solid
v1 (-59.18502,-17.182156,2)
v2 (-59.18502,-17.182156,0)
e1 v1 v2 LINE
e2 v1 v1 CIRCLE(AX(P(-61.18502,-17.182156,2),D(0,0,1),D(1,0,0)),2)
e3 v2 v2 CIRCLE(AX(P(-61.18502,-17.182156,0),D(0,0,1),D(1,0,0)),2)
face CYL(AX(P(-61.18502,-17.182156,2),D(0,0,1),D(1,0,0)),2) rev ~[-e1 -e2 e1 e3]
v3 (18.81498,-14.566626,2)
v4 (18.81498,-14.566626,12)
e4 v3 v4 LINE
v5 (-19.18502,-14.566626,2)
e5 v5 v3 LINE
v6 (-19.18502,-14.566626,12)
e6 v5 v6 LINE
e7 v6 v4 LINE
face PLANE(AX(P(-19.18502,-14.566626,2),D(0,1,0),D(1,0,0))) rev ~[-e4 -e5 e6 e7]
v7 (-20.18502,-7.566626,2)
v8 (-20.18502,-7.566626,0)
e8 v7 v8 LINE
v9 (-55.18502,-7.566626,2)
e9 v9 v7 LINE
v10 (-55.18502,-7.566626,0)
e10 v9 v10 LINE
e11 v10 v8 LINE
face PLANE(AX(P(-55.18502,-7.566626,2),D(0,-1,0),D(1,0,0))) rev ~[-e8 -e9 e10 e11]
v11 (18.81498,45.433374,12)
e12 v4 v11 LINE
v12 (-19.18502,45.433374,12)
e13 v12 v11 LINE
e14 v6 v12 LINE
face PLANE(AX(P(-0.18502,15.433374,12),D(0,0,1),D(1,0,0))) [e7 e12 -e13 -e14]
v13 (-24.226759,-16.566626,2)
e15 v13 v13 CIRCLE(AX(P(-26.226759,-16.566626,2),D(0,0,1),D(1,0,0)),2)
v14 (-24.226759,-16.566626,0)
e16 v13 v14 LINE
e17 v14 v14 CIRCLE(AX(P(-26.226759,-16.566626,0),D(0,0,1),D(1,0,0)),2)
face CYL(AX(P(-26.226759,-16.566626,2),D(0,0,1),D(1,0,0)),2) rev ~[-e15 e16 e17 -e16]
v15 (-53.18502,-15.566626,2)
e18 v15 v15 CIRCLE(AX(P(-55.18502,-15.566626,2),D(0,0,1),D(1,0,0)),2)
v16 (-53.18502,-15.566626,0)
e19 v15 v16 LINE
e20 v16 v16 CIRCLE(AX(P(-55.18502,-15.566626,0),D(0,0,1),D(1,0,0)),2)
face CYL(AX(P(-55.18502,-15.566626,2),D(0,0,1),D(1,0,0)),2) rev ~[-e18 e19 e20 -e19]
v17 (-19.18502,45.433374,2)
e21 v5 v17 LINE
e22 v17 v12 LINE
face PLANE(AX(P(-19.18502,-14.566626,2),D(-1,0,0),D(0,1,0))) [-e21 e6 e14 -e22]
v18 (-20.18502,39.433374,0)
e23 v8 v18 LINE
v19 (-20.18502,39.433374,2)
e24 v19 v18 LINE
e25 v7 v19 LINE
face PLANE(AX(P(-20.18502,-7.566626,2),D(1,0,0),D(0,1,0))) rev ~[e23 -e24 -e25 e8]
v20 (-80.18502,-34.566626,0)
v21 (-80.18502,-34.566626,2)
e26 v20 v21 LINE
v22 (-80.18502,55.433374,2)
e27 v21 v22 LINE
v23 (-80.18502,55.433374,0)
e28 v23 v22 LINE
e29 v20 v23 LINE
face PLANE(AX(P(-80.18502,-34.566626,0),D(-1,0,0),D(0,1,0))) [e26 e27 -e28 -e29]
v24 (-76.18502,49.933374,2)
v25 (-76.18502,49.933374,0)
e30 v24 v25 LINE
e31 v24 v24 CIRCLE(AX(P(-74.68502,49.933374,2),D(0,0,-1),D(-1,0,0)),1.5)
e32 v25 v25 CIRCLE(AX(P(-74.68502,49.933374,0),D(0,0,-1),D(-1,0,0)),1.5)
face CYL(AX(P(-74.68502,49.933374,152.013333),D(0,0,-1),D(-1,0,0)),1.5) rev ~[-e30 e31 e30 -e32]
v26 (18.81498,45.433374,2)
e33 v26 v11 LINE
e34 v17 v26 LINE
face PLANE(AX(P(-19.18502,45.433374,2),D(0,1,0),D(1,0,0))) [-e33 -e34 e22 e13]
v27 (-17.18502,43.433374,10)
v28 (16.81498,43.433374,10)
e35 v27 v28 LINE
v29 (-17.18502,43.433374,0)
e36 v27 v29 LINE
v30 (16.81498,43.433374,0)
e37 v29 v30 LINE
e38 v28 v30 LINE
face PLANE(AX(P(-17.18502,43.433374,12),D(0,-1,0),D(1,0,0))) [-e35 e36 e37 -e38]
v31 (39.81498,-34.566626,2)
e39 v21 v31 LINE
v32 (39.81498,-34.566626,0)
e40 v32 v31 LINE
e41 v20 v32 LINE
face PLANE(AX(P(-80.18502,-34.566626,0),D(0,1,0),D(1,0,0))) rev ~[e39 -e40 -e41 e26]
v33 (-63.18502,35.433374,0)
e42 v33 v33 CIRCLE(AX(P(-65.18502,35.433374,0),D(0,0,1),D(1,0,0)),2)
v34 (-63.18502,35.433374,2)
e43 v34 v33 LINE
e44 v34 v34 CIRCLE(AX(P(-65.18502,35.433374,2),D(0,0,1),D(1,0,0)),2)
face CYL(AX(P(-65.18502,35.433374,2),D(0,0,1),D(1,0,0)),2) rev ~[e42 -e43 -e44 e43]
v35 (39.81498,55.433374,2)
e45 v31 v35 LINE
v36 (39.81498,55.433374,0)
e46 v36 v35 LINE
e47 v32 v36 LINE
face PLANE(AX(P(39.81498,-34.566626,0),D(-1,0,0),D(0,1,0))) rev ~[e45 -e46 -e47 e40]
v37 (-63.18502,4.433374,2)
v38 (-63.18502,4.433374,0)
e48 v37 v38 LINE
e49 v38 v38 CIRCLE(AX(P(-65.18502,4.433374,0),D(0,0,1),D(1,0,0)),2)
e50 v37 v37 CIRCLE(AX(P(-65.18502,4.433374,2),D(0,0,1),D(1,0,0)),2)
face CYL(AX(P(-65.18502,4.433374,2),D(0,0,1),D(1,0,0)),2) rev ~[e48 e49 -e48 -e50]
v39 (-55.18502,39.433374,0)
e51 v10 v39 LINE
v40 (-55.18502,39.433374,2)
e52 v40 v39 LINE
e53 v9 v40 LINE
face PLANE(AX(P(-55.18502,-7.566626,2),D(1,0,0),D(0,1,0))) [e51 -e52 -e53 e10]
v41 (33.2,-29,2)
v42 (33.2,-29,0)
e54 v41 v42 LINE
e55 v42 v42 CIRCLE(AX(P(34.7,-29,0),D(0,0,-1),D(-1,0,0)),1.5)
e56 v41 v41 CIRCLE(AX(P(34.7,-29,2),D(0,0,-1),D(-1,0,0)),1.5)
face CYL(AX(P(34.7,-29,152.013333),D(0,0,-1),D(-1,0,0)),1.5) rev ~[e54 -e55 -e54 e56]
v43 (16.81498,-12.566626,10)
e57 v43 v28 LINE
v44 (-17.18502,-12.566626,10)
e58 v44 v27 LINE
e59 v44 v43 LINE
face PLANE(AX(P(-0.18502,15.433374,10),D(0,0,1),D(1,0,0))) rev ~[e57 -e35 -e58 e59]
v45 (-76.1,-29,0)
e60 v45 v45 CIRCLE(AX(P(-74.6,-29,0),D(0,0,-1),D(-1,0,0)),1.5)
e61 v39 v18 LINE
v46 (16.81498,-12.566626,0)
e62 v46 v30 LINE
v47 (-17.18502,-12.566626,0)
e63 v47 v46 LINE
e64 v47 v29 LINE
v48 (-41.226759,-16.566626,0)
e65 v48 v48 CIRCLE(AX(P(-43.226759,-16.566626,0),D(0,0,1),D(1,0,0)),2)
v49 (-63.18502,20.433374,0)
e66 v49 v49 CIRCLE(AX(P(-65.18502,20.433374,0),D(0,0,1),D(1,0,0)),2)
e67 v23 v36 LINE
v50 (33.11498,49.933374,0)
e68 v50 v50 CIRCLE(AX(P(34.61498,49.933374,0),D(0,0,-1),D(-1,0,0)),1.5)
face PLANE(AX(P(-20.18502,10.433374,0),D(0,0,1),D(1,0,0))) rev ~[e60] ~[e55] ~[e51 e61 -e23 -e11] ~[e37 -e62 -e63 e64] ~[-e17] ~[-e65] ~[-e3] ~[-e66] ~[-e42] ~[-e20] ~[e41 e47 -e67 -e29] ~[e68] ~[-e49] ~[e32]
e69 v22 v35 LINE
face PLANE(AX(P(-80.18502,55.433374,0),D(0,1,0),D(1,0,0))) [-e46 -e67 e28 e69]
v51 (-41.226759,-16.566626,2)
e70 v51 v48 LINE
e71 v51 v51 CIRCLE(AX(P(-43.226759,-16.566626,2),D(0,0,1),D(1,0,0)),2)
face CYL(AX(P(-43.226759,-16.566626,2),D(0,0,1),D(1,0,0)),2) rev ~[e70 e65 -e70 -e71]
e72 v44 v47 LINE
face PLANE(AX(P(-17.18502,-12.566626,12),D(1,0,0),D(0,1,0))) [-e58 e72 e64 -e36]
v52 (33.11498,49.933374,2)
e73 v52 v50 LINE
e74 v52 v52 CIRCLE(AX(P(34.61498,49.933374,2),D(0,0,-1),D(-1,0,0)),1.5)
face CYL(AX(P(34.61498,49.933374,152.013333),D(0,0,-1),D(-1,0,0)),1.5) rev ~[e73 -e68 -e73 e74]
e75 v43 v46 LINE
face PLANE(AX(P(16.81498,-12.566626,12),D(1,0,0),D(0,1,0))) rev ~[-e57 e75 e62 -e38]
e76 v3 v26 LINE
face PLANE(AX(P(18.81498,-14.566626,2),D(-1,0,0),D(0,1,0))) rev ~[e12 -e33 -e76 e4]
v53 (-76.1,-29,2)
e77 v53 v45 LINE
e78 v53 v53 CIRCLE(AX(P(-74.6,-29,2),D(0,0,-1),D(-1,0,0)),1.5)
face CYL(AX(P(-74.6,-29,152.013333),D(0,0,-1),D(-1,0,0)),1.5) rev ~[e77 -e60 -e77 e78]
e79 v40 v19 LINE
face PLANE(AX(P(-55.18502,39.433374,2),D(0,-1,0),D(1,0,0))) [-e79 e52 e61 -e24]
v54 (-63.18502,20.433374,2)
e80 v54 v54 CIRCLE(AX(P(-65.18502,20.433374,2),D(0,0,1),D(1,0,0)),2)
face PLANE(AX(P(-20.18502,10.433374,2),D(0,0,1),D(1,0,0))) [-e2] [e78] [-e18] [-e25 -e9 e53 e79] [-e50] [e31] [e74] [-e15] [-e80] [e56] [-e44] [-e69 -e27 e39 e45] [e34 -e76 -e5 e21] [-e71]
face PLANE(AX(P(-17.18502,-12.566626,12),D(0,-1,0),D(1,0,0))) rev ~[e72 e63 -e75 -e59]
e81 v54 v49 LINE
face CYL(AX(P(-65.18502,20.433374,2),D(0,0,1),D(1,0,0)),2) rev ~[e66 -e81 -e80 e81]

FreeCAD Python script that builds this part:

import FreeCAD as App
import Part
import Sketcher
from FreeCAD import Vector
Q = App.Units.Quantity

doc = App.newDocument("Part")
params = doc.addObject("Spreadsheet::Sheet", "Params")
for row, (alias, value) in enumerate([
    ("sketch1_width", "120 mm"),
    ("sketch1_height", "90 mm"),
    ("pad1_length", "2 mm"),
    ("sketch2_width", "35 mm"),
    ("sketch2_height", "47 mm"),
    ("pocket1_length", "2 mm"),
    ("sketch3_diameter", "3 mm"),
    ("hole_diameter", "3 mm"),
    ("sketch4_width", "38 mm"),
    ("sketch4_height", "60 mm"),
    ("pad2_length", "10 mm"),
    ("sketch5_width", "34 mm"),
    ("sketch5_height", "56 mm"),
    ("sketch6_width", "34 mm"),
    ("sketch6_height", "56 mm"),
    ("pad3_length", "2 mm"),
    ("sketch7_diameter", "4 mm"),
    ("pocket3_length", "25 mm"),
], start=1):
    params.set(f"A{row}", alias)
    params.set(f"B{row}", "=" + value)
    params.setAlias(f"B{row}", alias)

body = doc.addObject("PartDesign::Body", "Body")

# Sketch on XY plane
sketch1 = body.newObject("Sketcher::SketchObject", "Sketch")
sketch1.AttachmentSupport = (doc.getObject("XY_Plane"), [""])
sketch1.MapMode = "FlatFace"
sketch1.addGeometry([
    Part.LineSegment(Vector(-80, 55, 0), Vector(-80, -35, 0)),
    Part.LineSegment(Vector(-80, -35, 0), Vector(40, -35, 0)),
    Part.LineSegment(Vector(40, -35, 0), Vector(40, 55, 0)),
    Part.LineSegment(Vector(40, 55, 0), Vector(-80, 55, 0)),
], False)
sketch1.addConstraint([
    Sketcher.Constraint("Coincident", 0, 2, 1, 1),
    Sketcher.Constraint("Coincident", 1, 2, 2, 1),
    Sketcher.Constraint("Coincident", 2, 2, 3, 1),
    Sketcher.Constraint("Coincident", 3, 2, 0, 1),
    Sketcher.Constraint("Vertical", 0),
    Sketcher.Constraint("Horizontal", 1),
    Sketcher.Constraint("Vertical", 2),
    Sketcher.Constraint("Horizontal", 3),
    Sketcher.Constraint("DistanceX", 1, 1, 1, 2, Q("120 mm")),
    Sketcher.Constraint("DistanceY", 0, 2, 0, 1, Q("90 mm")),
    Sketcher.Constraint("DistanceX", 0, 2, -1, 1, Q("80.18502 mm")),
    Sketcher.Constraint("DistanceY", 0, 2, -1, 1, Q("34.566626 mm")),
])
sketch1.setExpression("Constraints[8]", "Params.sketch1_width")
sketch1.setExpression("Constraints[9]", "Params.sketch1_height")
pad1 = body.newObject("PartDesign::Pad", "Pad")
pad1.Profile = sketch1
pad1.setExpression("Length", "Params.pad1_length")

# Sketch on XY plane
sketch2 = body.newObject("Sketcher::SketchObject", "Sketch001")
sketch2.AttachmentSupport = (doc.getObject("XY_Plane"), [""])
sketch2.MapMode = "FlatFace"
sketch2.AttachmentOffset = App.Placement(Vector(0, 0, 2), App.Rotation())
sketch2.addGeometry([
    Part.LineSegment(Vector(-55, 39, 0), Vector(-55, -8, 0)),
    Part.LineSegment(Vector(-55, -8, 0), Vector(-20, -8, 0)),
    Part.LineSegment(Vector(-20, -8, 0), Vector(-20, 39, 0)),
    Part.LineSegment(Vector(-20, 39, 0), Vector(-55, 39, 0)),
], False)
sketch2.addConstraint([
    Sketcher.Constraint("Coincident", 0, 2, 1, 1),
    Sketcher.Constraint("Coincident", 1, 2, 2, 1),
    Sketcher.Constraint("Coincident", 2, 2, 3, 1),
    Sketcher.Constraint("Coincident", 3, 2, 0, 1),
    Sketcher.Constraint("Vertical", 0),
    Sketcher.Constraint("Horizontal", 1),
    Sketcher.Constraint("Vertical", 2),
    Sketcher.Constraint("Horizontal", 3),
    Sketcher.Constraint("DistanceX", 1, 1, 1, 2, Q("35 mm")),
    Sketcher.Constraint("DistanceY", 0, 2, 0, 1, Q("47 mm")),
    Sketcher.Constraint("DistanceX", 0, 2, -1, 1, Q("55.18502 mm")),
    Sketcher.Constraint("DistanceY", 0, 2, -1, 1, Q("7.566626 mm")),
])
sketch2.setExpression("Constraints[8]", "Params.sketch2_width")
sketch2.setExpression("Constraints[9]", "Params.sketch2_height")
pocket1 = body.newObject("PartDesign::Pocket", "Pocket")
pocket1.Profile = sketch2
pocket1.setExpression("Length", "Params.pocket1_length")

# Sketch on XY plane
sketch3 = body.newObject("Sketcher::SketchObject", "Sketch002")
sketch3.AttachmentSupport = (doc.getObject("XY_Plane"), [""])
sketch3.MapMode = "FlatFace"
sketch3.AttachmentOffset = App.Placement(Vector(0, 0, 2), App.Rotation())
sketch3.addGeometry([
    Part.Circle(Vector(-74.6, -29, 0), Vector(0, 0, 1), 1.5),
    Part.Circle(Vector(34.7, -29, 0), Vector(0, 0, 1), 1.5),
    Part.Circle(Vector(34.6, 49.9, 0), Vector(0, 0, 1), 1.5),
    Part.Circle(Vector(-74.7, 49.9, 0), Vector(0, 0, 1), 1.5),
], False)
sketch3.addConstraint([
    Sketcher.Constraint("Equal", 0, 1),
    Sketcher.Constraint("Equal", 1, 2),
    Sketcher.Constraint("Equal", 2, 3),
    Sketcher.Constraint("Horizontal", 0, 3, 1, 3),
    Sketcher.Constraint("Horizontal", 2, 3, 3, 3),
    Sketcher.Constraint("Diameter", 0, Q("3 mm")),
    Sketcher.Constraint("DistanceY", 0, 3, -1, 1, Q("29 mm")),
    Sketcher.Constraint("DistanceX", 0, 3, -1, 1, Q("74.6 mm")),
    Sketcher.Constraint("DistanceX", -1, 1, 1, 3, Q("34.7 mm")),
    Sketcher.Constraint("DistanceX", 3, 3, 2, 3, Q("109.3 mm")),
    Sketcher.Constraint("DistanceX", -1, 1, 2, 3, Q("34.61498 mm")),
    Sketcher.Constraint("DistanceY", -1, 1, 2, 3, Q("49.933374 mm")),
])
sketch3.setExpression("Constraints[5]", "Params.sketch3_diameter")
doc.recompute()
hole = body.newObject("PartDesign::Hole", "Hole")
hole.Profile = sketch3
hole.ThreadType = "None"
hole.setExpression("Diameter", "Params.hole_diameter")
hole.DepthType = "ThroughAll"

# Sketch on XY plane
sketch4 = body.newObject("Sketcher::SketchObject", "Sketch003")
sketch4.AttachmentSupport = (doc.getObject("XY_Plane"), [""])
sketch4.MapMode = "FlatFace"
sketch4.AttachmentOffset = App.Placement(Vector(0, 0, 2), App.Rotation())
sketch4.addGeometry([
    Part.LineSegment(Vector(-19, 45, 0), Vector(-19, -15, 0)),
    Part.LineSegment(Vector(-19, -15, 0), Vector(19, -15, 0)),
    Part.LineSegment(Vector(19, -15, 0), Vector(19, 45, 0)),
    Part.LineSegment(Vector(19, 45, 0), Vector(-19, 45, 0)),
], False)
sketch4.addConstraint([
    Sketcher.Constraint("Coincident", 0, 2, 1, 1),
    Sketcher.Constraint("Coincident", 1, 2, 2, 1),
    Sketcher.Constraint("Coincident", 2, 2, 3, 1),
    Sketcher.Constraint("Coincident", 3, 2, 0, 1),
    Sketcher.Constraint("Vertical", 0),
    Sketcher.Constraint("Horizontal", 1),
    Sketcher.Constraint("Vertical", 2),
    Sketcher.Constraint("Horizontal", 3),
    Sketcher.Constraint("DistanceX", 1, 1, 1, 2, Q("38 mm")),
    Sketcher.Constraint("DistanceY", 0, 2, 0, 1, Q("60 mm")),
    Sketcher.Constraint("DistanceX", 0, 2, -1, 1, Q("19.18502 mm")),
    Sketcher.Constraint("DistanceY", 0, 2, -1, 1, Q("14.566626 mm")),
])
sketch4.setExpression("Constraints[8]", "Params.sketch4_width")
sketch4.setExpression("Constraints[9]", "Params.sketch4_height")
pad2 = body.newObject("PartDesign::Pad", "Pad001")
pad2.Profile = sketch4
pad2.setExpression("Length", "Params.pad2_length")

# Sketch on XY plane
sketch5 = body.newObject("Sketcher::SketchObject", "Sketch004")
sketch5.AttachmentSupport = (doc.getObject("XY_Plane"), [""])
sketch5.MapMode = "FlatFace"
sketch5.AttachmentOffset = App.Placement(Vector(0, 0, 12), App.Rotation())
sketch5.addGeometry([
    Part.LineSegment(Vector(-17, 43, 0), Vector(-17, -13, 0)),
    Part.LineSegment(Vector(-17, -13, 0), Vector(17, -13, 0)),
    Part.LineSegment(Vector(17, -13, 0), Vector(17, 43, 0)),
    Part.LineSegment(Vector(17, 43, 0), Vector(-17, 43, 0)),
], False)
sketch5.addConstraint([
    Sketcher.Constraint("Coincident", 0, 2, 1, 1),
    Sketcher.Constraint("Coincident", 1, 2, 2, 1),
    Sketcher.Constraint("Coincident", 2, 2, 3, 1),
    Sketcher.Constraint("Coincident", 3, 2, 0, 1),
    Sketcher.Constraint("Vertical", 0),
    Sketcher.Constraint("Horizontal", 1),
    Sketcher.Constraint("Vertical", 2),
    Sketcher.Constraint("Horizontal", 3),
    Sketcher.Constraint("DistanceX", 1, 1, 1, 2, Q("34 mm")),
    Sketcher.Constraint("DistanceY", 0, 2, 0, 1, Q("56 mm")),
    Sketcher.Constraint("DistanceX", 0, 2, -1, 1, Q("17.18502 mm")),
    Sketcher.Constraint("DistanceY", 0, 2, -1, 1, Q("12.566626 mm")),
])
sketch5.setExpression("Constraints[8]", "Params.sketch5_width")
sketch5.setExpression("Constraints[9]", "Params.sketch5_height")
pocket2 = body.newObject("PartDesign::Pocket", "Pocket001")
pocket2.Profile = sketch5
pocket2.Type = "ThroughAll"

# Sketch on XY plane
sketch6 = body.newObject("Sketcher::SketchObject", "Sketch005")
sketch6.AttachmentSupport = (doc.getObject("XY_Plane"), [""])
sketch6.MapMode = "FlatFace"
sketch6.AttachmentOffset = App.Placement(Vector(0, 0, 12), App.Rotation())
sketch6.addGeometry([
    Part.LineSegment(Vector(-17, 43, 0), Vector(-17, -13, 0)),
    Part.LineSegment(Vector(-17, -13, 0), Vector(17, -13, 0)),
    Part.LineSegment(Vector(17, -13, 0), Vector(17, 43, 0)),
    Part.LineSegment(Vector(17, 43, 0), Vector(-17, 43, 0)),
], False)
sketch6.addConstraint([
    Sketcher.Constraint("Coincident", 0, 2, 1, 1),
    Sketcher.Constraint("Coincident", 1, 2, 2, 1),
    Sketcher.Constraint("Coincident", 2, 2, 3, 1),
    Sketcher.Constraint("Coincident", 3, 2, 0, 1),
    Sketcher.Constraint("Vertical", 0),
    Sketcher.Constraint("Horizontal", 1),
    Sketcher.Constraint("Vertical", 2),
    Sketcher.Constraint("Horizontal", 3),
    Sketcher.Constraint("DistanceX", 1, 1, 1, 2, Q("34 mm")),
    Sketcher.Constraint("DistanceY", 0, 2, 0, 1, Q("56 mm")),
    Sketcher.Constraint("DistanceX", 0, 2, -1, 1, Q("17.18502 mm")),
    Sketcher.Constraint("DistanceY", 0, 2, -1, 1, Q("12.566626 mm")),
])
sketch6.setExpression("Constraints[8]", "Params.sketch6_width")
sketch6.setExpression("Constraints[9]", "Params.sketch6_height")
pad3 = body.newObject("PartDesign::Pad", "Pad002")
pad3.Profile = sketch6
pad3.setExpression("Length", "Params.pad3_length")
pad3.Reversed = True

# Sketch on XY plane
sketch7 = body.newObject("Sketcher::SketchObject", "Sketch006")
sketch7.AttachmentSupport = (doc.getObject("XY_Plane"), [""])
sketch7.MapMode = "FlatFace"
sketch7.AttachmentOffset = App.Placement(Vector(0, 0, 2), App.Rotation())
sketch7.addGeometry([
    Part.Circle(Vector(-65.2, 35.4, 0), Vector(0, 0, 1), 2),  # 0
    Part.Circle(Vector(-65.2, 20.4, 0), Vector(0, 0, 1), 2),  # 1
    Part.Circle(Vector(-65.2, 4.4, 0), Vector(0, 0, 1), 2),  # 2
    Part.Circle(Vector(-61.2, -17.2, 0), Vector(0, 0, 1), 2),  # 3
    Part.Circle(Vector(-55.2, -15.6, 0), Vector(0, 0, 1), 2),  # 4
    Part.Circle(Vector(-43.2, -16.6, 0), Vector(0, 0, 1), 2),  # 5
    Part.Circle(Vector(-26.2, -16.6, 0), Vector(0, 0, 1), 2),  # 6
], False)
sketch7.addConstraint([
    Sketcher.Constraint("Equal", 0, 1),
    Sketcher.Constraint("Equal", 1, 2),
    Sketcher.Constraint("Equal", 2, 3),
    Sketcher.Constraint("Equal", 3, 4),
    Sketcher.Constraint("Equal", 4, 5),
    Sketcher.Constraint("Equal", 5, 6),
    Sketcher.Constraint("Horizontal", 5, 3, 6, 3),
    Sketcher.Constraint("Vertical", 0, 3, 1, 3),
    Sketcher.Constraint("Vertical", 1, 3, 2, 3),
    Sketcher.Constraint("Diameter", 0, Q("4 mm")),
    Sketcher.Constraint("DistanceY", 1, 3, 0, 3, Q("15 mm")),
    Sketcher.Constraint("DistanceY", 2, 3, 1, 3, Q("16 mm")),
    Sketcher.Constraint("DistanceX", 2, 3, 3, 3, Q("4 mm")),
    Sketcher.Constraint("DistanceX", 3, 3, 4, 3, Q("6 mm")),
    Sketcher.Constraint("DistanceY", 4, 3, 2, 3, Q("20 mm")),
    Sketcher.Constraint("DistanceY", 5, 3, 4, 3, Q("1 mm")),
    Sketcher.Constraint("DistanceX", 5, 3, 6, 3, Q("17 mm")),
    Sketcher.Constraint("DistanceX", 0, 3, -1, 1, Q("65.18502 mm")),
    Sketcher.Constraint("DistanceX", 5, 3, -1, 1, Q("43.226759 mm")),
    Sketcher.Constraint("DistanceY", 3, 3, 2, 3, Q("21.61553 mm")),
    Sketcher.Constraint("DistanceY", -1, 1, 0, 3, Q("35.433374 mm")),
])
sketch7.setExpression("Constraints[9]", "Params.sketch7_diameter")
pocket3 = body.newObject("PartDesign::Pocket", "Pocket002")
pocket3.Profile = sketch7
pocket3.setExpression("Length", "Params.pocket3_length")

doc.recompute()
